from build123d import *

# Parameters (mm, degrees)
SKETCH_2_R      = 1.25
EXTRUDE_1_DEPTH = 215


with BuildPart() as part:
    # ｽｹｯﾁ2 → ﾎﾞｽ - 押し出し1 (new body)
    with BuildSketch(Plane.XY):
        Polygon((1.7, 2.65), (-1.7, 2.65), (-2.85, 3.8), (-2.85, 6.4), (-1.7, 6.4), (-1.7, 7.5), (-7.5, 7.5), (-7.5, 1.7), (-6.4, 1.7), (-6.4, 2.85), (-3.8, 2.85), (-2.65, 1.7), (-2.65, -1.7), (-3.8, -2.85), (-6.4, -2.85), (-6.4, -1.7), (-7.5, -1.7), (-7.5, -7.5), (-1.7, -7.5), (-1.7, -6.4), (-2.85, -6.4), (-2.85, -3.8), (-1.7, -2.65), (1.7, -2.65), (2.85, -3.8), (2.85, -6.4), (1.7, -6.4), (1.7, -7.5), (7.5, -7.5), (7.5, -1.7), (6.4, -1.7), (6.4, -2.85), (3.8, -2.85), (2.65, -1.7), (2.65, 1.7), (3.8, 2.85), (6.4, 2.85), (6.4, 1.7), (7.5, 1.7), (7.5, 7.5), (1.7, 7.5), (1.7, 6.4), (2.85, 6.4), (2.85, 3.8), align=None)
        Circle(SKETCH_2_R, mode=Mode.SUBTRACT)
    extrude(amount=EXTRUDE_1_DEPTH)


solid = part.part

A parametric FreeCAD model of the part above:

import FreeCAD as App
import Part
import Sketcher

V = App.Vector

doc = App.newDocument("Part")
body = doc.addObject("PartDesign::Body", "Body")

# Sketch on XY plane
sketch1 = body.newObject("Sketcher::SketchObject", "Sketch")
sketch1.AttachmentSupport = (doc.getObject("XY_Plane"), [""])
sketch1.MapMode = "FlatFace"
sketch1.addGeometry([
    Part.LineSegment(V(1.7, 2.6, 0), V(-1.7, 2.6, 0)),  # 0
    Part.LineSegment(V(-1.7, 2.6, 0), V(-2.9, 3.8, 0)),  # 1
    Part.LineSegment(V(-2.9, 3.8, 0), V(-2.9, 6.4, 0)),  # 2
    Part.LineSegment(V(-2.9, 6.4, 0), V(-1.7, 6.4, 0)),  # 3
    Part.LineSegment(V(-1.7, 6.4, 0), V(-1.7, 7.5, 0)),  # 4
    Part.LineSegment(V(-1.7, 7.5, 0), V(-7.5, 7.5, 0)),  # 5
    Part.LineSegment(V(-7.5, 7.5, 0), V(-7.5, 1.7, 0)),  # 6
    Part.LineSegment(V(-7.5, 1.7, 0), V(-6.4, 1.7, 0)),  # 7
    Part.LineSegment(V(-6.4, 1.7, 0), V(-6.4, 2.9, 0)),  # 8
    Part.LineSegment(V(-6.4, 2.9, 0), V(-3.8, 2.9, 0)),  # 9
    Part.LineSegment(V(-3.8, 2.9, 0), V(-2.6, 1.7, 0)),  # 10
    Part.LineSegment(V(-2.6, 1.7, 0), V(-2.6, -1.7, 0)),  # 11
    Part.LineSegment(V(-2.6, -1.7, 0), V(-3.8, -2.9, 0)),  # 12
    Part.LineSegment(V(-3.8, -2.9, 0), V(-6.4, -2.9, 0)),  # 13
    Part.LineSegment(V(-6.4, -2.9, 0), V(-6.4, -1.7, 0)),  # 14
    Part.LineSegment(V(-6.4, -1.7, 0), V(-7.5, -1.7, 0)),  # 15
    Part.LineSegment(V(-7.5, -1.7, 0), V(-7.5, -7.5, 0)),  # 16
    Part.LineSegment(V(-7.5, -7.5, 0), V(-1.7, -7.5, 0)),  # 17
    Part.LineSegment(V(-1.7, -7.5, 0), V(-1.7, -6.4, 0)),  # 18
    Part.LineSegment(V(-1.7, -6.4, 0), V(-2.9, -6.4, 0)),  # 19
    Part.LineSegment(V(-2.9, -6.4, 0), V(-2.9, -3.8, 0)),  # 20
    Part.LineSegment(V(-2.9, -3.8, 0), V(-1.7, -2.6, 0)),  # 21
    Part.LineSegment(V(-1.7, -2.6, 0), V(1.7, -2.6, 0)),  # 22
    Part.LineSegment(V(1.7, -2.6, 0), V(2.9, -3.8, 0)),  # 23
    Part.LineSegment(V(2.9, -3.8, 0), V(2.9, -6.4, 0)),  # 24
    Part.LineSegment(V(2.9, -6.4, 0), V(1.7, -6.4, 0)),  # 25
    Part.LineSegment(V(1.7, -6.4, 0), V(1.7, -7.5, 0)),  # 26
    Part.LineSegment(V(1.7, -7.5, 0), V(7.5, -7.5, 0)),  # 27
    Part.LineSegment(V(7.5, -7.5, 0), V(7.5, -1.7, 0)),  # 28
    Part.LineSegment(V(7.5, -1.7, 0), V(6.4, -1.7, 0)),  # 29
    Part.LineSegment(V(6.4, -1.7, 0), V(6.4, -2.9, 0)),  # 30
    Part.LineSegment(V(6.4, -2.9, 0), V(3.8, -2.9, 0)),  # 31
    Part.LineSegment(V(3.8, -2.9, 0), V(2.6, -1.7, 0)),  # 32
    Part.LineSegment(V(2.6, -1.7, 0), V(2.6, 1.7, 0)),  # 33
    Part.LineSegment(V(2.6, 1.7, 0), V(3.8, 2.9, 0)),  # 34
    Part.LineSegment(V(3.8, 2.9, 0), V(6.4, 2.9, 0)),  # 35
    Part.LineSegment(V(6.4, 2.9, 0), V(6.4, 1.7, 0)),  # 36
    Part.LineSegment(V(6.4, 1.7, 0), V(7.5, 1.7, 0)),  # 37
    Part.LineSegment(V(7.5, 1.7, 0), V(7.5, 7.5, 0)),  # 38
    Part.LineSegment(V(7.5, 7.5, 0), V(1.7, 7.5, 0)),  # 39
    Part.LineSegment(V(1.7, 7.5, 0), V(1.7, 6.4, 0)),  # 40
    Part.LineSegment(V(1.7, 6.4, 0), V(2.9, 6.4, 0)),  # 41
    Part.LineSegment(V(2.9, 6.4, 0), V(2.9, 3.8, 0)),  # 42
    Part.LineSegment(V(2.9, 3.8, 0), V(1.7, 2.6, 0)),  # 43
    Part.Circle(V(0, 0, 0), V(0, 0, 1), 1.2),  # 44
], False)
sketch1.addConstraint([
    Sketcher.Constraint("Coincident", 0, 2, 1, 1),
    Sketcher.Constraint("Coincident", 1, 2, 2, 1),
    Sketcher.Constraint("Coincident", 2, 2, 3, 1),
    Sketcher.Constraint("Coincident", 3, 2, 4, 1),
    Sketcher.Constraint("Coincident", 4, 2, 5, 1),
    Sketcher.Constraint("Coincident", 5, 2, 6, 1),
    Sketcher.Constraint("Coincident", 6, 2, 7, 1),
    Sketcher.Constraint("Coincident", 7, 2, 8, 1),
    Sketcher.Constraint("Coincident", 8, 2, 9, 1),
    Sketcher.Constraint("Coincident", 9, 2, 10, 1),
    Sketcher.Constraint("Coincident", 10, 2, 11, 1),
    Sketcher.Constraint("Coincident", 11, 2, 12, 1),
    Sketcher.Constraint("Coincident", 12, 2, 13, 1),
    Sketcher.Constraint("Coincident", 13, 2, 14, 1),
    Sketcher.Constraint("Coincident", 14, 2, 15, 1),
    Sketcher.Constraint("Coincident", 15, 2, 16, 1),
    Sketcher.Constraint("Coincident", 16, 2, 17, 1),
    Sketcher.Constraint("Coincident", 17, 2, 18, 1),
    Sketcher.Constraint("Coincident", 18, 2, 19, 1),
    Sketcher.Constraint("Coincident", 19, 2, 20, 1),
    Sketcher.Constraint("Coincident", 20, 2, 21, 1),
    Sketcher.Constraint("Coincident", 21, 2, 22, 1),
    Sketcher.Constraint("Coincident", 22, 2, 23, 1),
    Sketcher.Constraint("Coincident", 23, 2, 24, 1),
    Sketcher.Constraint("Coincident", 24, 2, 25, 1),
    Sketcher.Constraint("Coincident", 25, 2, 26, 1),
    Sketcher.Constraint("Coincident", 26, 2, 27, 1),
    Sketcher.Constraint("Coincident", 27, 2, 28, 1),
    Sketcher.Constraint("Coincident", 28, 2, 29, 1),
    Sketcher.Constraint("Coincident", 29, 2, 30, 1),
    Sketcher.Constraint("Coincident", 30, 2, 31, 1),
    Sketcher.Constraint("Coincident", 31, 2, 32, 1),
    Sketcher.Constraint("Coincident", 32, 2, 33, 1),
    Sketcher.Constraint("Coincident", 33, 2, 34, 1),
    Sketcher.Constraint("Coincident", 34, 2, 35, 1),
    Sketcher.Constraint("Coincident", 35, 2, 36, 1),
    Sketcher.Constraint("Coincident", 36, 2, 37, 1),
    Sketcher.Constraint("Coincident", 37, 2, 38, 1),
    Sketcher.Constraint("Coincident", 38, 2, 39, 1),
    Sketcher.Constraint("Coincident", 39, 2, 40, 1),
    Sketcher.Constraint("Coincident", 40, 2, 41, 1),
    Sketcher.Constraint("Coincident", 41, 2, 42, 1),
    Sketcher.Constraint("Coincident", 42, 2, 43, 1),
    Sketcher.Constraint("Coincident", 43, 2, 0, 1),
    Sketcher.Constraint("Horizontal", 0),
    Sketcher.Constraint("Vertical", 2),
    Sketcher.Constraint("Horizontal", 3),
    Sketcher.Constraint("Vertical", 4),
    Sketcher.Constraint("Horizontal", 5),
    Sketcher.Constraint("Vertical", 6),
    Sketcher.Constraint("Horizontal", 7),
    Sketcher.Constraint("Vertical", 8),
    Sketcher.Constraint("Horizontal", 9),
    Sketcher.Constraint("Vertical", 11),
    Sketcher.Constraint("Horizontal", 13),
    Sketcher.Constraint("Vertical", 14),
    Sketcher.Constraint("Horizontal", 15),
    Sketcher.Constraint("Vertical", 16),
    Sketcher.Constraint("Horizontal", 17),
    Sketcher.Constraint("Vertical", 18),
    Sketcher.Constraint("Horizontal", 19),
    Sketcher.Constraint("Vertical", 20),
    Sketcher.Constraint("Horizontal", 22),
    Sketcher.Constraint("Vertical", 24),
    Sketcher.Constraint("Horizontal", 25),
    Sketcher.Constraint("Vertical", 26),
    Sketcher.Constraint("Horizontal", 27),
    Sketcher.Constraint("Vertical", 28),
    Sketcher.Constraint("Horizontal", 29),
    Sketcher.Constraint("Vertical", 30),
    Sketcher.Constraint("Horizontal", 31),
    Sketcher.Constraint("Vertical", 33),
    Sketcher.Constraint("Horizontal", 35),
    Sketcher.Constraint("Vertical", 36),
    Sketcher.Constraint("Horizontal", 37),
    Sketcher.Constraint("Vertical", 38),
    Sketcher.Constraint("Horizontal", 39),
    Sketcher.Constraint("Vertical", 40),
    Sketcher.Constraint("Horizontal", 41),
    Sketcher.Constraint("Vertical", 42),
    Sketcher.Constraint("Coincident", 44, 3, -1, 1),
    Sketcher.Constraint("Symmetric", 0, 2, 22, 2, -1, 1),
    Sketcher.Constraint("Symmetric", 1, 2, 23, 2, -1, 1),
    Sketcher.Constraint("Symmetric", 3, 2, 25, 2, -1, 1),
    Sketcher.Constraint("Symmetric", 5, 2, 27, 2, -1, 1),
    Sketcher.Constraint("Symmetric", 7, 2, 29, 2, -1, 1),
    Sketcher.Constraint("Symmetric", 9, 2, 31, 2, -1, 1),
    Sketcher.Constraint("Symmetric", 10, 2, 32, 2, -1, 1),
    Sketcher.Constraint("Symmetric", 12, 2, 34, 2, -1, 1),
    Sketcher.Constraint("Symmetric", 14, 2, 36, 2, -1, 1),
    Sketcher.Constraint("Symmetric", 16, 2, 38, 2, -1, 1),
    Sketcher.Constraint("Symmetric", 18, 2, 40, 2, -1, 1),
    Sketcher.Constraint("Symmetric", 20, 2, 42, 2, -1, 1),
    Sketcher.Constraint("Symmetric", 20, 2, 23, 2, -2),
    Sketcher.Constraint("Symmetric", 18, 2, 25, 2, -2),
    Sketcher.Constraint("Symmetric", 16, 2, 27, 2, -2),
    Sketcher.Constraint("Symmetric", 14, 2, 29, 2, -2),
    Sketcher.Constraint("Symmetric", 12, 2, 31, 2, -2),
    Sketcher.Constraint("Parallel", 1, 10),
    Sketcher.Constraint("Perpendicular", 10, 12),
    Sketcher.Constraint("Parallel", 12, 21),
    Sketcher.Constraint("Perpendicular", 32, 34),
    Sketcher.Constraint("Parallel", 34, 43),
    Sketcher.Constraint("Horizontal", 7, 2, 10, 2),
    Sketcher.Constraint("Horizontal", 11, 2, 14, 2),
    Sketcher.Constraint("Vertical", 0, 2, 3, 2),
    Sketcher.Constraint("Equal", 35, 2),
    Sketcher.Constraint("Equal", 37, 4),
    Sketcher.Constraint("Equal", 39, 6),
    Sketcher.Constraint("Equal", 41, 8),
    Sketcher.Constraint("Equal", 22, 11),
    Sketcher.Constraint("Diameter", 44, 2.5),
    Sketcher.Constraint("DistanceX", 0, 2, 0, 1, 3.4),
    Sketcher.Constraint("DistanceX", 5, 2, 5, 1, 5.8),
    Sketcher.Constraint("DistanceX", 7, 1, 7, 2, 1.1),
    Sketcher.Constraint("DistanceX", 9, 1, 9, 2, 2.6),
    Sketcher.Constraint("DistanceX", 3, 1, 3, 2, 1.15),
])
pad1 = body.newObject("PartDesign::Pad", "Pad")
pad1.Profile = sketch1
pad1.Length = 215

doc.recompute()
